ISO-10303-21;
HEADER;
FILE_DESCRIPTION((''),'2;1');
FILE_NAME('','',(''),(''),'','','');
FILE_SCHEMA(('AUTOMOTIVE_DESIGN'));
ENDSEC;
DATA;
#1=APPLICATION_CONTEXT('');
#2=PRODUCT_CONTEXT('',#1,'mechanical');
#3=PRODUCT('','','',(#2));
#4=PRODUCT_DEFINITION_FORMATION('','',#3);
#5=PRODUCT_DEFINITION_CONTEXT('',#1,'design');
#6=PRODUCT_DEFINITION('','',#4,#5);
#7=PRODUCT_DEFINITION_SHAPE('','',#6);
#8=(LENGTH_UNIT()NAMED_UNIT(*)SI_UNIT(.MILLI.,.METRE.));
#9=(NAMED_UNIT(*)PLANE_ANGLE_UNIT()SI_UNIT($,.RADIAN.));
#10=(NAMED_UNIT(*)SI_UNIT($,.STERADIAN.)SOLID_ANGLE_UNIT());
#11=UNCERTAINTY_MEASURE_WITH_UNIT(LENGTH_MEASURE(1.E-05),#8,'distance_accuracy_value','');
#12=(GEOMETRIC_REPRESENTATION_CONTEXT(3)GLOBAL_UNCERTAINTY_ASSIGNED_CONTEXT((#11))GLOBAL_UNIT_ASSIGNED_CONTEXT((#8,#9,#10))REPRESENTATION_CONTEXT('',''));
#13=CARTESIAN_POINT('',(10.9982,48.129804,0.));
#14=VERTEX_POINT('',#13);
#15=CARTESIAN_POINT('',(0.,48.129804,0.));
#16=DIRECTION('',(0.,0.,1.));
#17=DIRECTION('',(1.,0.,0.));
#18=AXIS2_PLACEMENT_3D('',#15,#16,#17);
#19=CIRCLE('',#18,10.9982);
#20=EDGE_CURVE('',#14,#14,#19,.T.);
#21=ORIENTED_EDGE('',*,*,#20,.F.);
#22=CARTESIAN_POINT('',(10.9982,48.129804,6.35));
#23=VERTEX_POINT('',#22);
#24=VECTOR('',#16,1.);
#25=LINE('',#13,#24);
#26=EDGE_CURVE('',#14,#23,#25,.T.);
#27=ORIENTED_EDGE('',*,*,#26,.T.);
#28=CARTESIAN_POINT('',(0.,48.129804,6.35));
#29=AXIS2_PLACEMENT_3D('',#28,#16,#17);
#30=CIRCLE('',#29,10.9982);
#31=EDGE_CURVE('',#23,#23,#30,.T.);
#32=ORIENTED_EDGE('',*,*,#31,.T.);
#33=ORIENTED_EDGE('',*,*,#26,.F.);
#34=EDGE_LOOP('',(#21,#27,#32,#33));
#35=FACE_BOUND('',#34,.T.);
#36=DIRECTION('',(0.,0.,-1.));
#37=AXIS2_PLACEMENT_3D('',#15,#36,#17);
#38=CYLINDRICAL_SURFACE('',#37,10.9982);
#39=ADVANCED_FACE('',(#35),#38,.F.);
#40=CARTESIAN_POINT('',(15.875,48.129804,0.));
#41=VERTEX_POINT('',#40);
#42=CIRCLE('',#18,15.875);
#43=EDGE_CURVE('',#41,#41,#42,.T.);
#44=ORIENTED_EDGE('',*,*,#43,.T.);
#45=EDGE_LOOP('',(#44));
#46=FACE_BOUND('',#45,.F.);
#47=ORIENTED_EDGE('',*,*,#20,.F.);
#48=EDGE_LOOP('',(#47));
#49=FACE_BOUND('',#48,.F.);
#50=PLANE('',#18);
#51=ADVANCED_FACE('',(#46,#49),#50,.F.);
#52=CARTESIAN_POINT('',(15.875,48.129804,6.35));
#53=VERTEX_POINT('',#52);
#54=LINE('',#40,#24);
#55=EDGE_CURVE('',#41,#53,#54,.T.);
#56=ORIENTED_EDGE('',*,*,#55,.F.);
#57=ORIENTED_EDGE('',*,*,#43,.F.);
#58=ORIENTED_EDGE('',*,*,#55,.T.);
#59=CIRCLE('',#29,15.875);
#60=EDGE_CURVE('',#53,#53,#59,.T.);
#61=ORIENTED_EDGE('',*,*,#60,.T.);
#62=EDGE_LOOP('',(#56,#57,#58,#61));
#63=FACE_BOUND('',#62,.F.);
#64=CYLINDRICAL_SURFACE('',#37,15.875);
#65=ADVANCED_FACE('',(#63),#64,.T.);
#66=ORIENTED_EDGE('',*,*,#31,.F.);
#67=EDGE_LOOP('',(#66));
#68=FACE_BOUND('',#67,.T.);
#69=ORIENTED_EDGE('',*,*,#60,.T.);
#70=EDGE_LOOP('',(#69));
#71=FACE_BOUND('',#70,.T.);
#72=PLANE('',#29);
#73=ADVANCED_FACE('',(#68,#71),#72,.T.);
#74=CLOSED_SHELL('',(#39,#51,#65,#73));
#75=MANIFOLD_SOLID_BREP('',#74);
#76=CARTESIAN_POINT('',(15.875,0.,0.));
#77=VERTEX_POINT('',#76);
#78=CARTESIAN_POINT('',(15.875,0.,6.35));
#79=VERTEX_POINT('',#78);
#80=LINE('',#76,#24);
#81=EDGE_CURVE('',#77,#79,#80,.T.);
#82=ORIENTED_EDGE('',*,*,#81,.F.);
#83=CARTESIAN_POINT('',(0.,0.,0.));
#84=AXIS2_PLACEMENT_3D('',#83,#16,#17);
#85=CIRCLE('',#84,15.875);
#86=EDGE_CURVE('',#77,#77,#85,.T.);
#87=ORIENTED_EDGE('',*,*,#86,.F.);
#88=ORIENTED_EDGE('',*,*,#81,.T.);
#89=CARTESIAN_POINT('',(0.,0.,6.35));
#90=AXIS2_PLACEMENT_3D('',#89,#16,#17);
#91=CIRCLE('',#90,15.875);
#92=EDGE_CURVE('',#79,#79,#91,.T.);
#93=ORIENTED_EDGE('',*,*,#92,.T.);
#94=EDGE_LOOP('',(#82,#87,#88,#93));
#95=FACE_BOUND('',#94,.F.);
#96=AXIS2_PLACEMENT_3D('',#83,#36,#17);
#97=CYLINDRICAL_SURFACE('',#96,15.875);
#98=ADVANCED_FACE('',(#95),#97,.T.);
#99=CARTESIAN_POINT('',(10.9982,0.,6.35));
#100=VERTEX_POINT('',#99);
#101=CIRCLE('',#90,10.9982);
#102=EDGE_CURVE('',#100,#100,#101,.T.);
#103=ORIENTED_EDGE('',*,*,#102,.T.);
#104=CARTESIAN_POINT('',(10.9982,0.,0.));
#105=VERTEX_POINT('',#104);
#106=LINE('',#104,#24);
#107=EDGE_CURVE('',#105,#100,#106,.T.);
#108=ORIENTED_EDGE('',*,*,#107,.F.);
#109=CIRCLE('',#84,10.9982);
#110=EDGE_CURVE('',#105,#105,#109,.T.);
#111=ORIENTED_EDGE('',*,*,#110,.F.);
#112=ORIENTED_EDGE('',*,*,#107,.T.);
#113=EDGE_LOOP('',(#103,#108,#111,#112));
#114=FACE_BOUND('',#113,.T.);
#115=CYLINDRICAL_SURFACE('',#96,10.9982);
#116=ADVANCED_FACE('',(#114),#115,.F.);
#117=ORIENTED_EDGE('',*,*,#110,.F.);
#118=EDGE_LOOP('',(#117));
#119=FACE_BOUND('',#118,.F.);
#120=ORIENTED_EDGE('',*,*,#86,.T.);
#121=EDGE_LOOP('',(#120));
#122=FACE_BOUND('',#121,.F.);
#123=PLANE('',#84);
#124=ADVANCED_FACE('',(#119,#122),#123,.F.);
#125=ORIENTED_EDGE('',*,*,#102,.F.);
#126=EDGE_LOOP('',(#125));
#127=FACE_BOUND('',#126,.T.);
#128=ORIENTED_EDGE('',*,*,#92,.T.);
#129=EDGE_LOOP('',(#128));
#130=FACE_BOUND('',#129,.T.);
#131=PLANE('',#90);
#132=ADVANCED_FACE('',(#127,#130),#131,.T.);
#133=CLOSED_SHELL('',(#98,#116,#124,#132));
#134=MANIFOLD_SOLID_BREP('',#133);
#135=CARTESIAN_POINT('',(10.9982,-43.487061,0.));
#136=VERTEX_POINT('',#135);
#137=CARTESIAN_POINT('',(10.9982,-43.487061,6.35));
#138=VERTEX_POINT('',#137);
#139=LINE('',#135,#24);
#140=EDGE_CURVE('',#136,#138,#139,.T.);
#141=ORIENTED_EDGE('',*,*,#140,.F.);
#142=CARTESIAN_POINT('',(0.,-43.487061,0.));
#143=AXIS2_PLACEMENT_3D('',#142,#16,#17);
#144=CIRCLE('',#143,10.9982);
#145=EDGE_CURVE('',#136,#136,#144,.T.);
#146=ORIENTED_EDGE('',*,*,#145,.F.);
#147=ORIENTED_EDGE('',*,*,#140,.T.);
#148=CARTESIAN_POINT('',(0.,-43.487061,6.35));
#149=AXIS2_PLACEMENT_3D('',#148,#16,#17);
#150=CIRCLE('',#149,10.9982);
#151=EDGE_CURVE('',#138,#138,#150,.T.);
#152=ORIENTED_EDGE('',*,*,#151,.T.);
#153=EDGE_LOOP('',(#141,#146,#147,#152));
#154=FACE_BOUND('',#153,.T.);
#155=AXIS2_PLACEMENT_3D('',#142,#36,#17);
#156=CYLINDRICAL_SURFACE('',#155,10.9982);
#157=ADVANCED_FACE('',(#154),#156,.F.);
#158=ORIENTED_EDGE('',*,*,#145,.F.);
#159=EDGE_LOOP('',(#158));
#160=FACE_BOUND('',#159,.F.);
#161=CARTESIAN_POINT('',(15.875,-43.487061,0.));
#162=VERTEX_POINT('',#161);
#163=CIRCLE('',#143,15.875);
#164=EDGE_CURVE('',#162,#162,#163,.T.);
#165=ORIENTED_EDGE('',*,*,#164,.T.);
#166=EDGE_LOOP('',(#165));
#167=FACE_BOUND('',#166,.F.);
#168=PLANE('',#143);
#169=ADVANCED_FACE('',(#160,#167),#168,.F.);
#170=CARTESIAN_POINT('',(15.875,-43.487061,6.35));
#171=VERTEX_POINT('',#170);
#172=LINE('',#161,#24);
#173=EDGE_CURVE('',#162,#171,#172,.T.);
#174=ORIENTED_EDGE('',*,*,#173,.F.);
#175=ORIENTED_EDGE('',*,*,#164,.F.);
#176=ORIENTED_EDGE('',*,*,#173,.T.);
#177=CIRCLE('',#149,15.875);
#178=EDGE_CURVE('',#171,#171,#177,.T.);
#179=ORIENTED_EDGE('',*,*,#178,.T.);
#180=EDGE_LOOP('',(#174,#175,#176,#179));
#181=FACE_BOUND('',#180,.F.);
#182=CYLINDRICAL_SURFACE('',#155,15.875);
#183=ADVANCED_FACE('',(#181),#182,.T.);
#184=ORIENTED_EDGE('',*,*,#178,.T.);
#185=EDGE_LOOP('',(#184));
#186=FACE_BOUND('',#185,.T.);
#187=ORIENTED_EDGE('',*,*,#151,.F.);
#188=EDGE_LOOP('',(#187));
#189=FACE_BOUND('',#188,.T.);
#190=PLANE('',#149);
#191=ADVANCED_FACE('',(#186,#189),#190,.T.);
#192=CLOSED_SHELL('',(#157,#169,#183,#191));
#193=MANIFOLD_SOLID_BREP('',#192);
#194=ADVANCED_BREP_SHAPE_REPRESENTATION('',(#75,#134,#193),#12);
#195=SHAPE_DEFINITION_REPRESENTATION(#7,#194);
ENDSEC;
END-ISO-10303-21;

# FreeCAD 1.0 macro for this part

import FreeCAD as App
import Part
import Sketcher
Q = App.Units.Quantity

doc = App.newDocument("Part")
body = doc.addObject("PartDesign::Body", "Body")
body.AllowCompound = True

sketch1 = body.newObject("Sketcher::SketchObject", "Sketch")
sketch1.AttachmentSupport = (doc.getObject("XY_Plane"), [""])
sketch1.MapMode = "FlatFace"
sketch1.addGeometry([
    Part.Circle(App.Vector(0, 48, 0), App.Vector(0, 0, 1), 16),
    Part.Circle(App.Vector(0, 48, 0), App.Vector(0, 0, 1), 11),
    Part.Circle(App.Vector(0, -43, 0), App.Vector(0, 0, 1), 16),
    Part.Circle(App.Vector(0, -43, 0), App.Vector(0, 0, 1), 11),
    Part.Circle(App.Vector(0, 0, 0), App.Vector(0, 0, 1), 16),
    Part.Circle(App.Vector(0, 0, 0), App.Vector(0, 0, 1), 11),
], False)
sketch1.addConstraint([
    Sketcher.Constraint("Coincident", 4, 3, -1, 1),
    Sketcher.Constraint("Coincident", 5, 3, -1, 1),
    Sketcher.Constraint("Coincident", 1, 3, 0, 3),
    Sketcher.Constraint("Coincident", 3, 3, 2, 3),
    Sketcher.Constraint("Equal", 0, 2),
    Sketcher.Constraint("Equal", 1, 3),
    Sketcher.Constraint("Equal", 2, 4),
    Sketcher.Constraint("Equal", 3, 5),
    Sketcher.Constraint("PointOnObject", 0, 3, -2),
    Sketcher.Constraint("PointOnObject", 2, 3, -2),
    Sketcher.Constraint("Diameter", 0, Q("1.25 in")),
    Sketcher.Constraint("Diameter", 1, Q("0.866 in")),
    Sketcher.Constraint("DistanceY", 2, 3, -1, 1, 43.487061),
    Sketcher.Constraint("DistanceY", -1, 1, 0, 3, 48.129804),
])
pad1 = body.newObject("PartDesign::Pad", "Pad")
pad1.Profile = sketch1
pad1.Length = Q("0.25 in")

doc.recompute()
